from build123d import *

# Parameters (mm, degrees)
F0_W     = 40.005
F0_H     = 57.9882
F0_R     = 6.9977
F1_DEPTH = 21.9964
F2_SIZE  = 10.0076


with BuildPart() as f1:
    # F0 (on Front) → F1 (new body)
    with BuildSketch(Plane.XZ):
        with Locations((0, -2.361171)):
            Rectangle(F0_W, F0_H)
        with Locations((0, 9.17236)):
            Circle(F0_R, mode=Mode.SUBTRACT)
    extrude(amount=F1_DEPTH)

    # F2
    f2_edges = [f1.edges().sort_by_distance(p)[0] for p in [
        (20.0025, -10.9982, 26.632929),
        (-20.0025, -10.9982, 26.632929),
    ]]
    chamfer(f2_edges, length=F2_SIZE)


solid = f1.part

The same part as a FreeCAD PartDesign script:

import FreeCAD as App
import Part
import Sketcher
from FreeCAD import Vector
Q = App.Units.Quantity


def edges_at(feature, points):
    """Names of the edges that pass closest to the given points."""
    edges = feature.Shape.Edges
    near = lambda p: min(range(len(edges)), key=lambda i: edges[i].distToShape(Part.Vertex(*p))[0])
    return sorted({f"Edge{near(p) + 1}" for p in points})

doc = App.newDocument("Part")
body = doc.addObject("PartDesign::Body", "Body")

sketch1 = doc.addObject("Sketcher::SketchObject", "Sketch")
body.addObject(sketch1)
sketch1.AttachmentSupport = (doc.XZ_Plane, [""])
sketch1.MapMode = "FlatFace"
sketch1.addGeometry([
    Part.LineSegment(Vector(-20, 27, 0), Vector(-20, -31, 0)),
    Part.LineSegment(Vector(-20, -31, 0), Vector(20, -31, 0)),
    Part.LineSegment(Vector(20, -31, 0), Vector(20, 27, 0)),
    Part.LineSegment(Vector(20, 27, 0), Vector(-20, 27, 0)),
    Part.Circle(Vector(0, 9, 0), Vector(0, 0, 1), 7),
], False)
sketch1.addConstraint([
    Sketcher.Constraint("Coincident", 0, 2, 1, 1),
    Sketcher.Constraint("Coincident", 1, 2, 2, 1),
    Sketcher.Constraint("Coincident", 2, 2, 3, 1),
    Sketcher.Constraint("Coincident", 3, 2, 0, 1),
    Sketcher.Constraint("Vertical", 0),
    Sketcher.Constraint("Horizontal", 1),
    Sketcher.Constraint("Vertical", 2),
    Sketcher.Constraint("Horizontal", 3),
    Sketcher.Constraint("PointOnObject", 4, 3, -2),
    Sketcher.Constraint("Diameter", 4, Q("0.551 in")),
    Sketcher.Constraint("DistanceX", 1, 1, 1, 2, Q("1.575 in")),
    Sketcher.Constraint("DistanceY", 0, 2, 0, 1, Q("2.283 in")),
    Sketcher.Constraint("DistanceX", 0, 2, -1, 1, Q("0.7875 in")),
    Sketcher.Constraint("DistanceY", -1, 1, 4, 3, Q("9.17236 mm")),
    Sketcher.Constraint("DistanceY", 0, 2, -1, 1, Q("31.355271 mm")),
])
pad1 = doc.addObject("PartDesign::Pad", "Pad")
body.addObject(pad1)
pad1.Profile = sketch1
pad1.Length = Q("0.866 in")
doc.recompute()

chamfer = doc.addObject("PartDesign::Chamfer", "Chamfer")
body.addObject(chamfer)
chamfer.Base = (pad1, edges_at(pad1, [(20.003, -10.998, 26.633), (-20.003, -10.998, 26.633)]))
chamfer.Size = Q("0.394 in")

doc.recompute()
